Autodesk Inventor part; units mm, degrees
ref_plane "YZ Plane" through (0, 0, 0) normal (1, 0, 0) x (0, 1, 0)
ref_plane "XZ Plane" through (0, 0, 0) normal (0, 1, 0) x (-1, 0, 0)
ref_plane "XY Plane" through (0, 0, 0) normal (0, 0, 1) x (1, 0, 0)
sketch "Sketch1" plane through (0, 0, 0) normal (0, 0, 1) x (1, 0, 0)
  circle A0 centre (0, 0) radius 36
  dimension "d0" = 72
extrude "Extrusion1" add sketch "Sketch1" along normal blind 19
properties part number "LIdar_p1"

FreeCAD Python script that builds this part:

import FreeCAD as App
import Part
import Sketcher

doc = App.newDocument("Part")
body = doc.addObject("PartDesign::Body", "Body")

sketch1 = doc.addObject("Sketcher::SketchObject", "Sketch")
body.addObject(sketch1)
sketch1.AttachmentSupport = (doc.XY_Plane, [""])
sketch1.MapMode = "FlatFace"
sketch1.addGeometry(Part.Circle(App.Vector(0, 0, 0), App.Vector(0, 0, 1), 36), False)
sketch1.addConstraint([
    Sketcher.Constraint("Coincident", 0, 3, -1, 1),
    Sketcher.Constraint("Diameter", 0, 72.0),
])
pad1 = doc.addObject("PartDesign::Pad", "Pad")
body.addObject(pad1)
pad1.Profile = sketch1
pad1.Length = 19

doc.recompute()
